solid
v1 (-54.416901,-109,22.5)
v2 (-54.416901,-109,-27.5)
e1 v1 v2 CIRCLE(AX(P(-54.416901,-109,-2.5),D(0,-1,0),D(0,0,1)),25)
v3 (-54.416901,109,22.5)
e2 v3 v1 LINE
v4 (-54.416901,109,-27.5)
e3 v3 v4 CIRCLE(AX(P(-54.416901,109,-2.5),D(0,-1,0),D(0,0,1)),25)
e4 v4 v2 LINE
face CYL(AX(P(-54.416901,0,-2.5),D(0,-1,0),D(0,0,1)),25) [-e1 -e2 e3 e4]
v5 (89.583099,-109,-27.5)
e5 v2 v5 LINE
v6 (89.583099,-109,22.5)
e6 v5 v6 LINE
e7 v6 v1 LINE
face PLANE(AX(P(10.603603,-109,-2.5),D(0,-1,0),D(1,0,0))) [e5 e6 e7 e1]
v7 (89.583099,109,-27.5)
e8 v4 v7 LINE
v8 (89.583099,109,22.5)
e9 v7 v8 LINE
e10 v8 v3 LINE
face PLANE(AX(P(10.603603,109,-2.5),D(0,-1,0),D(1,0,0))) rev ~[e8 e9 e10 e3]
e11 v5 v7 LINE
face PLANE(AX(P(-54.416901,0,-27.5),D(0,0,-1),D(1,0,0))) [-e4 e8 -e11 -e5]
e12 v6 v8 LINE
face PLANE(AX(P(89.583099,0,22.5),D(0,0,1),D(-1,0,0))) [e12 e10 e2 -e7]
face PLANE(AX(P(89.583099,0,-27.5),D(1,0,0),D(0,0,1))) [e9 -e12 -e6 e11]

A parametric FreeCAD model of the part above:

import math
import FreeCAD as App
import Part
import Sketcher

doc = App.newDocument("Part")
body = doc.addObject("PartDesign::Body", "Body")

# Sketch on XZ plane
sketch1 = doc.addObject("Sketcher::SketchObject", "Sketch")
body.addObject(sketch1)
sketch1.AttachmentSupport = (doc.XZ_Plane, [""])
sketch1.MapMode = "FlatFace"
sketch1.addGeometry([
    Part.LineSegment(App.Vector(90, 22, 0), App.Vector(-54, 22, 0)),
    Part.ArcOfCircle(Part.Circle(App.Vector(-54, -2, 0), App.Vector(0, 0, 1), 25), math.radians(90), math.radians(270)),
    Part.LineSegment(App.Vector(-54, -28, 0), App.Vector(90, -28, 0)),
    Part.LineSegment(App.Vector(90, -28, 0), App.Vector(90, 22, 0)),
], False)
sketch1.addConstraint([
    Sketcher.Constraint("Tangent", 0, 2, 1, 1),
    Sketcher.Constraint("Tangent", 1, 2, 2, 1),
    Sketcher.Constraint("Coincident", 2, 2, 3, 1),
    Sketcher.Constraint("Coincident", 3, 2, 0, 1),
    Sketcher.Constraint("Horizontal", 0),
    Sketcher.Constraint("Horizontal", 2),
    Sketcher.Constraint("Vertical", 3),
    Sketcher.Constraint("Radius", 1, 25.0),
    Sketcher.Constraint("DistanceX", 0, 2, 0, 1, 144.0),
    Sketcher.Constraint("DistanceY", 1, 3, -1, 1, 2.5),
    Sketcher.Constraint("DistanceX", 1, 3, -1, 1, 54.416901),
])
pad1 = doc.addObject("PartDesign::Pad", "Pad")
body.addObject(pad1)
pad1.Profile = sketch1
pad1.Length = 218
pad1.Midplane = True

doc.recompute()
